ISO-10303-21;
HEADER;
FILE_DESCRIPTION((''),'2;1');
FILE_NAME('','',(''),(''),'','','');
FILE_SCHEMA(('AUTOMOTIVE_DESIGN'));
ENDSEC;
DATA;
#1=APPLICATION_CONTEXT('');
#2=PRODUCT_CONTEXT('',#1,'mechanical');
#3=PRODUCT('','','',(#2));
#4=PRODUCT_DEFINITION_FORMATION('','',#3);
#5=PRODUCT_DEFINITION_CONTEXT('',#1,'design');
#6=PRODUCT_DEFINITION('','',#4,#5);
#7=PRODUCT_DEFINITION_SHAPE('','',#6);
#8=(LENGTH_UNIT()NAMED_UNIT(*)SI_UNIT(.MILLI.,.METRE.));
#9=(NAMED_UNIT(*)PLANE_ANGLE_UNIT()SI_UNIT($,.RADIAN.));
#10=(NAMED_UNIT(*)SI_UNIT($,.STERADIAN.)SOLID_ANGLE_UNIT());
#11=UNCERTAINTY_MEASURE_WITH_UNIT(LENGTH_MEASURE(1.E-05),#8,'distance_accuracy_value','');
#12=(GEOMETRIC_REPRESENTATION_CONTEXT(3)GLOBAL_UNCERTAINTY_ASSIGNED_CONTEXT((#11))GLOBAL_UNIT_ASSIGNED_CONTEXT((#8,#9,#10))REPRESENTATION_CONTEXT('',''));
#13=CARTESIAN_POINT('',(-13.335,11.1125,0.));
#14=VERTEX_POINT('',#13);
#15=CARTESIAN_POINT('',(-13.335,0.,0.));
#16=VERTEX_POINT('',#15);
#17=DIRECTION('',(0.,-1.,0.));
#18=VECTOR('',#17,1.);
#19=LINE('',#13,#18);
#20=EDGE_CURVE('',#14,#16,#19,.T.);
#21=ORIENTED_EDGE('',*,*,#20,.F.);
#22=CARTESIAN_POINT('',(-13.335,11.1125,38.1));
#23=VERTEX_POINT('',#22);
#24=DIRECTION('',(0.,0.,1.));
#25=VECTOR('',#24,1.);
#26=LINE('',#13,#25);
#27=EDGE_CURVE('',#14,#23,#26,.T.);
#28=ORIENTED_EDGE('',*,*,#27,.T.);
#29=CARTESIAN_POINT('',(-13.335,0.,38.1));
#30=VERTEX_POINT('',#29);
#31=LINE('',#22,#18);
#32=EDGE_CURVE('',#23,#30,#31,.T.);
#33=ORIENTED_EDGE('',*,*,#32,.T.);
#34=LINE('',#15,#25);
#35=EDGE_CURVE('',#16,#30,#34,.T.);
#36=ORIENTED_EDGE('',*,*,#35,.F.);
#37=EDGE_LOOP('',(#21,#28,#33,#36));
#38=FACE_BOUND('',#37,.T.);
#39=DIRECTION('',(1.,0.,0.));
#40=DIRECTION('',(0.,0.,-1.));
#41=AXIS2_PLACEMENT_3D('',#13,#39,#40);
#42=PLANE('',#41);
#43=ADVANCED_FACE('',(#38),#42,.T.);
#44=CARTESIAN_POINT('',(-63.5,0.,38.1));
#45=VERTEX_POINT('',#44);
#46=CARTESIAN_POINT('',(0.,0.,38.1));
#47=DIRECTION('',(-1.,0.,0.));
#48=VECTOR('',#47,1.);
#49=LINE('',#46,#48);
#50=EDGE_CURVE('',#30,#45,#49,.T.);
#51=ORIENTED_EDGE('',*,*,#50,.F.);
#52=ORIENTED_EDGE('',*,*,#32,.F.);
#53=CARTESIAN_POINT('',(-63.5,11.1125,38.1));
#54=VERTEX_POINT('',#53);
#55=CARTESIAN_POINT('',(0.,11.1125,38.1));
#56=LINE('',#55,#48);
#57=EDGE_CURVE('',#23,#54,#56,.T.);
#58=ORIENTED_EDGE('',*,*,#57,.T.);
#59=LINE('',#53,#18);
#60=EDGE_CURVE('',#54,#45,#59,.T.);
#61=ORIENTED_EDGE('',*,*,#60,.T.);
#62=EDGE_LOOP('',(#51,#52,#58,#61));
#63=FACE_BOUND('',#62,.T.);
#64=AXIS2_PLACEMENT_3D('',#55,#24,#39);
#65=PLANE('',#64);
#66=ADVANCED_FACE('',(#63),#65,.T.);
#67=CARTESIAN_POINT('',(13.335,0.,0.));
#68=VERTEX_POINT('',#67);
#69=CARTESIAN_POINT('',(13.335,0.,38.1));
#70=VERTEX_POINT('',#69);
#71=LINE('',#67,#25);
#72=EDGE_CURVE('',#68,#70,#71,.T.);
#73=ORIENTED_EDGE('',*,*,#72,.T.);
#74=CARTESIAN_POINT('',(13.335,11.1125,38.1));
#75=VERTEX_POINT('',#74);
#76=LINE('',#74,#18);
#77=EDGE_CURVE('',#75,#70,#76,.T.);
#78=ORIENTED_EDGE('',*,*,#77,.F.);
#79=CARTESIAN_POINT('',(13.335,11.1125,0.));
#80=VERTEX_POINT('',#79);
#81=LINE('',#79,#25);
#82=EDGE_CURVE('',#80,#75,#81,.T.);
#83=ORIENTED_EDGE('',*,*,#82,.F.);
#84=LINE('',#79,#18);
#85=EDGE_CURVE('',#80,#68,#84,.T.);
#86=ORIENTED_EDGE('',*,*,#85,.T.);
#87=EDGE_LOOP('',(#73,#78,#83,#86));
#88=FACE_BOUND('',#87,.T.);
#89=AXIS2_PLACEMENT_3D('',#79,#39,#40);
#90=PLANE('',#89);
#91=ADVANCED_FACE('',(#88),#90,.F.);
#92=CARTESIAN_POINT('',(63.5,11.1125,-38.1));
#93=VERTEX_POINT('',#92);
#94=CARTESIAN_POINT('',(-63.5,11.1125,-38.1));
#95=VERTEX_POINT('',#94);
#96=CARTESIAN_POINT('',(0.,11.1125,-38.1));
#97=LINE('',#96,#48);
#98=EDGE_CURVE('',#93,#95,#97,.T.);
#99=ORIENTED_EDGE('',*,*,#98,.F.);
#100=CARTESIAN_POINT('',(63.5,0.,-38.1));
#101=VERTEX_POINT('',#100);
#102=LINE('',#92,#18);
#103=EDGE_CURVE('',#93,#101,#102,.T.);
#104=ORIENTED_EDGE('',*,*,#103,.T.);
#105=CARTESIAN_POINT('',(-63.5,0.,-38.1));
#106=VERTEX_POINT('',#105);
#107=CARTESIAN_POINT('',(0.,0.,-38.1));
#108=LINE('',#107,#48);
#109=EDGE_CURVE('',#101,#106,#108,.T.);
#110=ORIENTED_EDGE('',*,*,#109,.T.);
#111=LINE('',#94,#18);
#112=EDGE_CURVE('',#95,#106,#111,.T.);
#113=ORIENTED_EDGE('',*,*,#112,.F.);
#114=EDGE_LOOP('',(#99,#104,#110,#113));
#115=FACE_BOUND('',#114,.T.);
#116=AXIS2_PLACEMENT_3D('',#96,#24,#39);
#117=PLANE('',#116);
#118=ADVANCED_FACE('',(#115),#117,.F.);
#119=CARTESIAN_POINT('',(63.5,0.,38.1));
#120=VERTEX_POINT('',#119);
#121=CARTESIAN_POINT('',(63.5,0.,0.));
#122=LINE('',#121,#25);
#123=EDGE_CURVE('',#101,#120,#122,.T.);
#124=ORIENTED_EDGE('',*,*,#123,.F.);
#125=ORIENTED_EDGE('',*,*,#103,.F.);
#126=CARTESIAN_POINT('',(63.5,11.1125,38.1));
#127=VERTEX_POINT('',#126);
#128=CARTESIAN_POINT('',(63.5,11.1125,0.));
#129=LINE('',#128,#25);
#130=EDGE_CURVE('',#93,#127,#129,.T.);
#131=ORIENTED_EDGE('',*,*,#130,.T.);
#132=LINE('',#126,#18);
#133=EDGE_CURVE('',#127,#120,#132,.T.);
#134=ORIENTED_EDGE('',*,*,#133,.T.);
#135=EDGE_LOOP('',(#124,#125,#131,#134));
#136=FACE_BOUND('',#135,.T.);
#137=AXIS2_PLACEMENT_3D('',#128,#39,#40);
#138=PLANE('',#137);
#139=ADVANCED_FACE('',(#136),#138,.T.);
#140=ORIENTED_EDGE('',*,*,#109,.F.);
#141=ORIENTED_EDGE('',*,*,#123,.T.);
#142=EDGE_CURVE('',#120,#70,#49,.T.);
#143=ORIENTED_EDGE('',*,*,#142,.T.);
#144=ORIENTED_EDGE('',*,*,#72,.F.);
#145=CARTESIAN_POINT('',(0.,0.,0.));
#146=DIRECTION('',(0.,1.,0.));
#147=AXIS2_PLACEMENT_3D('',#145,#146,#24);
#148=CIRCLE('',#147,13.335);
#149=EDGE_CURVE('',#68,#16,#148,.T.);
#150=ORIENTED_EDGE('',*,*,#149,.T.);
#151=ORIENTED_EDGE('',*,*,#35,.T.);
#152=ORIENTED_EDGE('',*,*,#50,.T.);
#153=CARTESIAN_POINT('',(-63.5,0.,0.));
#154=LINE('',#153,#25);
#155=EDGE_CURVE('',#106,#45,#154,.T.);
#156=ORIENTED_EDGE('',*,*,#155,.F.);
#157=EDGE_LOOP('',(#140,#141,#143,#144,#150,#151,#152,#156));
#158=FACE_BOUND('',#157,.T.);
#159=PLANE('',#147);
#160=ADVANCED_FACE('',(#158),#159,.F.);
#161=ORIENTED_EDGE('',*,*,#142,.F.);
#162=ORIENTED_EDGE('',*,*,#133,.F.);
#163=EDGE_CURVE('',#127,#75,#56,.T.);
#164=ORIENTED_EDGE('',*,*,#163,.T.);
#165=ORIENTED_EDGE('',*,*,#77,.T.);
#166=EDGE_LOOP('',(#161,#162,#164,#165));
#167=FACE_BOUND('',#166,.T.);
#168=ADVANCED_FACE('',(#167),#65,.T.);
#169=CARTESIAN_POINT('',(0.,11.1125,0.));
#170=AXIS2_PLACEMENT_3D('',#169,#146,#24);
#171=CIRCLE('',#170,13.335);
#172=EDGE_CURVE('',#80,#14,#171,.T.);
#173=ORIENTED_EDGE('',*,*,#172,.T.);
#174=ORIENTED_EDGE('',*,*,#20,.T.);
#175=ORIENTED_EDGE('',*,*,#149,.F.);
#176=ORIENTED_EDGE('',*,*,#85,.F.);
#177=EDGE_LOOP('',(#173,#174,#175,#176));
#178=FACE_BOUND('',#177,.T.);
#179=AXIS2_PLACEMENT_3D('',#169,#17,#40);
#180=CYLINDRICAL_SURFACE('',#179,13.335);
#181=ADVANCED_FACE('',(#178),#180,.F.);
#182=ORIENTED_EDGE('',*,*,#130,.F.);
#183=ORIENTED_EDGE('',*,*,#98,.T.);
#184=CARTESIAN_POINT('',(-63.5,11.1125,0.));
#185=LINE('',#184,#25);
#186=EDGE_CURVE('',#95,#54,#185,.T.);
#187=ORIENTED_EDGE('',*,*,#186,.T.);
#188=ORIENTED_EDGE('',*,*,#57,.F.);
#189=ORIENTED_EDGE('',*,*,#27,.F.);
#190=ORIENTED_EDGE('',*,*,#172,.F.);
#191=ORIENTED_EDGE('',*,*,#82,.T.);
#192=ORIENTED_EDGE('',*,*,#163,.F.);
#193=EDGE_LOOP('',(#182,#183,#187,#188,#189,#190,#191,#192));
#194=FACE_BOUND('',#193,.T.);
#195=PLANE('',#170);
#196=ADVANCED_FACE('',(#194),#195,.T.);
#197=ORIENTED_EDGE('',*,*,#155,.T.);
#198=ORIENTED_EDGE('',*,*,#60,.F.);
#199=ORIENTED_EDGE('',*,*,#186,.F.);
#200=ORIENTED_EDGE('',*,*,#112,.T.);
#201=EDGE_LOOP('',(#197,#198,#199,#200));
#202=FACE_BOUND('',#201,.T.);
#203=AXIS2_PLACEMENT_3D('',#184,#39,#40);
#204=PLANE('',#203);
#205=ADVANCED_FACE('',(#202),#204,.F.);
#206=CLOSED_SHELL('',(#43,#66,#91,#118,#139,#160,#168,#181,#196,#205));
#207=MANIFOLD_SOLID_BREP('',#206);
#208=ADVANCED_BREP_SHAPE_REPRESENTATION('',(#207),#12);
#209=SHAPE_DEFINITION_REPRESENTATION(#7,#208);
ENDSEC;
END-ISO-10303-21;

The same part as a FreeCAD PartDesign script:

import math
import FreeCAD as App
import Part
import Sketcher
from FreeCAD import Vector
Q = App.Units.Quantity

doc = App.newDocument("Part")
body = doc.addObject("PartDesign::Body", "Body")

# Sketch on XZ plane
sketch1 = body.newObject("Sketcher::SketchObject", "Sketch")
sketch1.AttachmentSupport = (doc.getObject("XZ_Plane"), [""])
sketch1.MapMode = "FlatFace"
sketch1.addGeometry([
    Part.LineSegment(Vector(-13.335, 38.1, 0), Vector(-13.335, 0, 0)),  # 0
    Part.ArcOfCircle(Part.Circle(Vector(0, 0, 0), Vector(0, 0, 1), 13.335), math.radians(180), math.radians(360)),  # 1
    Part.LineSegment(Vector(13.335, 0, 0), Vector(13.335, 38.1, 0)),  # 2
    Part.LineSegment(Vector(13.335, 38.1, 0), Vector(63.5, 38.1, 0)),  # 3
    Part.LineSegment(Vector(63.5, 38.1, 0), Vector(63.5, -38.1, 0)),  # 4
    Part.LineSegment(Vector(63.5, -38.1, 0), Vector(-63.5, -38.1, 0)),  # 5
    Part.LineSegment(Vector(-63.5, -38.1, 0), Vector(-63.5, 38.1, 0)),  # 6
    Part.LineSegment(Vector(-63.5, 38.1, 0), Vector(-13.335, 38.1, 0)),  # 7
], False)
sketch1.addConstraint([
    Sketcher.Constraint("Tangent", 0, 2, 1, 1),
    Sketcher.Constraint("Tangent", 1, 2, 2, 1),
    Sketcher.Constraint("Coincident", 2, 2, 3, 1),
    Sketcher.Constraint("Coincident", 3, 2, 4, 1),
    Sketcher.Constraint("Coincident", 4, 2, 5, 1),
    Sketcher.Constraint("Coincident", 5, 2, 6, 1),
    Sketcher.Constraint("Coincident", 6, 2, 7, 1),
    Sketcher.Constraint("Coincident", 7, 2, 0, 1),
    Sketcher.Constraint("Vertical", 0),
    Sketcher.Constraint("Vertical", 2),
    Sketcher.Constraint("Horizontal", 3),
    Sketcher.Constraint("Vertical", 4),
    Sketcher.Constraint("Horizontal", 5),
    Sketcher.Constraint("Vertical", 6),
    Sketcher.Constraint("Horizontal", 7),
    Sketcher.Constraint("Coincident", 1, 3, -1, 1),
    Sketcher.Constraint("Symmetric", 3, 2, 5, 2, -1, 1),
    Sketcher.Constraint("Horizontal", 3, 2, 6, 2),
    Sketcher.Constraint("DistanceX", 5, 2, 5, 1, Q("5 in")),
    Sketcher.Constraint("DistanceY", 4, 2, 4, 1, Q("3 in")),
    Sketcher.Constraint("Radius", 1, Q("0.525 in")),
])
pad1 = body.newObject("PartDesign::Pad", "Pad")
pad1.Profile = sketch1
pad1.Length = Q("0.4375 in")
pad1.Reversed = True

doc.recompute()
